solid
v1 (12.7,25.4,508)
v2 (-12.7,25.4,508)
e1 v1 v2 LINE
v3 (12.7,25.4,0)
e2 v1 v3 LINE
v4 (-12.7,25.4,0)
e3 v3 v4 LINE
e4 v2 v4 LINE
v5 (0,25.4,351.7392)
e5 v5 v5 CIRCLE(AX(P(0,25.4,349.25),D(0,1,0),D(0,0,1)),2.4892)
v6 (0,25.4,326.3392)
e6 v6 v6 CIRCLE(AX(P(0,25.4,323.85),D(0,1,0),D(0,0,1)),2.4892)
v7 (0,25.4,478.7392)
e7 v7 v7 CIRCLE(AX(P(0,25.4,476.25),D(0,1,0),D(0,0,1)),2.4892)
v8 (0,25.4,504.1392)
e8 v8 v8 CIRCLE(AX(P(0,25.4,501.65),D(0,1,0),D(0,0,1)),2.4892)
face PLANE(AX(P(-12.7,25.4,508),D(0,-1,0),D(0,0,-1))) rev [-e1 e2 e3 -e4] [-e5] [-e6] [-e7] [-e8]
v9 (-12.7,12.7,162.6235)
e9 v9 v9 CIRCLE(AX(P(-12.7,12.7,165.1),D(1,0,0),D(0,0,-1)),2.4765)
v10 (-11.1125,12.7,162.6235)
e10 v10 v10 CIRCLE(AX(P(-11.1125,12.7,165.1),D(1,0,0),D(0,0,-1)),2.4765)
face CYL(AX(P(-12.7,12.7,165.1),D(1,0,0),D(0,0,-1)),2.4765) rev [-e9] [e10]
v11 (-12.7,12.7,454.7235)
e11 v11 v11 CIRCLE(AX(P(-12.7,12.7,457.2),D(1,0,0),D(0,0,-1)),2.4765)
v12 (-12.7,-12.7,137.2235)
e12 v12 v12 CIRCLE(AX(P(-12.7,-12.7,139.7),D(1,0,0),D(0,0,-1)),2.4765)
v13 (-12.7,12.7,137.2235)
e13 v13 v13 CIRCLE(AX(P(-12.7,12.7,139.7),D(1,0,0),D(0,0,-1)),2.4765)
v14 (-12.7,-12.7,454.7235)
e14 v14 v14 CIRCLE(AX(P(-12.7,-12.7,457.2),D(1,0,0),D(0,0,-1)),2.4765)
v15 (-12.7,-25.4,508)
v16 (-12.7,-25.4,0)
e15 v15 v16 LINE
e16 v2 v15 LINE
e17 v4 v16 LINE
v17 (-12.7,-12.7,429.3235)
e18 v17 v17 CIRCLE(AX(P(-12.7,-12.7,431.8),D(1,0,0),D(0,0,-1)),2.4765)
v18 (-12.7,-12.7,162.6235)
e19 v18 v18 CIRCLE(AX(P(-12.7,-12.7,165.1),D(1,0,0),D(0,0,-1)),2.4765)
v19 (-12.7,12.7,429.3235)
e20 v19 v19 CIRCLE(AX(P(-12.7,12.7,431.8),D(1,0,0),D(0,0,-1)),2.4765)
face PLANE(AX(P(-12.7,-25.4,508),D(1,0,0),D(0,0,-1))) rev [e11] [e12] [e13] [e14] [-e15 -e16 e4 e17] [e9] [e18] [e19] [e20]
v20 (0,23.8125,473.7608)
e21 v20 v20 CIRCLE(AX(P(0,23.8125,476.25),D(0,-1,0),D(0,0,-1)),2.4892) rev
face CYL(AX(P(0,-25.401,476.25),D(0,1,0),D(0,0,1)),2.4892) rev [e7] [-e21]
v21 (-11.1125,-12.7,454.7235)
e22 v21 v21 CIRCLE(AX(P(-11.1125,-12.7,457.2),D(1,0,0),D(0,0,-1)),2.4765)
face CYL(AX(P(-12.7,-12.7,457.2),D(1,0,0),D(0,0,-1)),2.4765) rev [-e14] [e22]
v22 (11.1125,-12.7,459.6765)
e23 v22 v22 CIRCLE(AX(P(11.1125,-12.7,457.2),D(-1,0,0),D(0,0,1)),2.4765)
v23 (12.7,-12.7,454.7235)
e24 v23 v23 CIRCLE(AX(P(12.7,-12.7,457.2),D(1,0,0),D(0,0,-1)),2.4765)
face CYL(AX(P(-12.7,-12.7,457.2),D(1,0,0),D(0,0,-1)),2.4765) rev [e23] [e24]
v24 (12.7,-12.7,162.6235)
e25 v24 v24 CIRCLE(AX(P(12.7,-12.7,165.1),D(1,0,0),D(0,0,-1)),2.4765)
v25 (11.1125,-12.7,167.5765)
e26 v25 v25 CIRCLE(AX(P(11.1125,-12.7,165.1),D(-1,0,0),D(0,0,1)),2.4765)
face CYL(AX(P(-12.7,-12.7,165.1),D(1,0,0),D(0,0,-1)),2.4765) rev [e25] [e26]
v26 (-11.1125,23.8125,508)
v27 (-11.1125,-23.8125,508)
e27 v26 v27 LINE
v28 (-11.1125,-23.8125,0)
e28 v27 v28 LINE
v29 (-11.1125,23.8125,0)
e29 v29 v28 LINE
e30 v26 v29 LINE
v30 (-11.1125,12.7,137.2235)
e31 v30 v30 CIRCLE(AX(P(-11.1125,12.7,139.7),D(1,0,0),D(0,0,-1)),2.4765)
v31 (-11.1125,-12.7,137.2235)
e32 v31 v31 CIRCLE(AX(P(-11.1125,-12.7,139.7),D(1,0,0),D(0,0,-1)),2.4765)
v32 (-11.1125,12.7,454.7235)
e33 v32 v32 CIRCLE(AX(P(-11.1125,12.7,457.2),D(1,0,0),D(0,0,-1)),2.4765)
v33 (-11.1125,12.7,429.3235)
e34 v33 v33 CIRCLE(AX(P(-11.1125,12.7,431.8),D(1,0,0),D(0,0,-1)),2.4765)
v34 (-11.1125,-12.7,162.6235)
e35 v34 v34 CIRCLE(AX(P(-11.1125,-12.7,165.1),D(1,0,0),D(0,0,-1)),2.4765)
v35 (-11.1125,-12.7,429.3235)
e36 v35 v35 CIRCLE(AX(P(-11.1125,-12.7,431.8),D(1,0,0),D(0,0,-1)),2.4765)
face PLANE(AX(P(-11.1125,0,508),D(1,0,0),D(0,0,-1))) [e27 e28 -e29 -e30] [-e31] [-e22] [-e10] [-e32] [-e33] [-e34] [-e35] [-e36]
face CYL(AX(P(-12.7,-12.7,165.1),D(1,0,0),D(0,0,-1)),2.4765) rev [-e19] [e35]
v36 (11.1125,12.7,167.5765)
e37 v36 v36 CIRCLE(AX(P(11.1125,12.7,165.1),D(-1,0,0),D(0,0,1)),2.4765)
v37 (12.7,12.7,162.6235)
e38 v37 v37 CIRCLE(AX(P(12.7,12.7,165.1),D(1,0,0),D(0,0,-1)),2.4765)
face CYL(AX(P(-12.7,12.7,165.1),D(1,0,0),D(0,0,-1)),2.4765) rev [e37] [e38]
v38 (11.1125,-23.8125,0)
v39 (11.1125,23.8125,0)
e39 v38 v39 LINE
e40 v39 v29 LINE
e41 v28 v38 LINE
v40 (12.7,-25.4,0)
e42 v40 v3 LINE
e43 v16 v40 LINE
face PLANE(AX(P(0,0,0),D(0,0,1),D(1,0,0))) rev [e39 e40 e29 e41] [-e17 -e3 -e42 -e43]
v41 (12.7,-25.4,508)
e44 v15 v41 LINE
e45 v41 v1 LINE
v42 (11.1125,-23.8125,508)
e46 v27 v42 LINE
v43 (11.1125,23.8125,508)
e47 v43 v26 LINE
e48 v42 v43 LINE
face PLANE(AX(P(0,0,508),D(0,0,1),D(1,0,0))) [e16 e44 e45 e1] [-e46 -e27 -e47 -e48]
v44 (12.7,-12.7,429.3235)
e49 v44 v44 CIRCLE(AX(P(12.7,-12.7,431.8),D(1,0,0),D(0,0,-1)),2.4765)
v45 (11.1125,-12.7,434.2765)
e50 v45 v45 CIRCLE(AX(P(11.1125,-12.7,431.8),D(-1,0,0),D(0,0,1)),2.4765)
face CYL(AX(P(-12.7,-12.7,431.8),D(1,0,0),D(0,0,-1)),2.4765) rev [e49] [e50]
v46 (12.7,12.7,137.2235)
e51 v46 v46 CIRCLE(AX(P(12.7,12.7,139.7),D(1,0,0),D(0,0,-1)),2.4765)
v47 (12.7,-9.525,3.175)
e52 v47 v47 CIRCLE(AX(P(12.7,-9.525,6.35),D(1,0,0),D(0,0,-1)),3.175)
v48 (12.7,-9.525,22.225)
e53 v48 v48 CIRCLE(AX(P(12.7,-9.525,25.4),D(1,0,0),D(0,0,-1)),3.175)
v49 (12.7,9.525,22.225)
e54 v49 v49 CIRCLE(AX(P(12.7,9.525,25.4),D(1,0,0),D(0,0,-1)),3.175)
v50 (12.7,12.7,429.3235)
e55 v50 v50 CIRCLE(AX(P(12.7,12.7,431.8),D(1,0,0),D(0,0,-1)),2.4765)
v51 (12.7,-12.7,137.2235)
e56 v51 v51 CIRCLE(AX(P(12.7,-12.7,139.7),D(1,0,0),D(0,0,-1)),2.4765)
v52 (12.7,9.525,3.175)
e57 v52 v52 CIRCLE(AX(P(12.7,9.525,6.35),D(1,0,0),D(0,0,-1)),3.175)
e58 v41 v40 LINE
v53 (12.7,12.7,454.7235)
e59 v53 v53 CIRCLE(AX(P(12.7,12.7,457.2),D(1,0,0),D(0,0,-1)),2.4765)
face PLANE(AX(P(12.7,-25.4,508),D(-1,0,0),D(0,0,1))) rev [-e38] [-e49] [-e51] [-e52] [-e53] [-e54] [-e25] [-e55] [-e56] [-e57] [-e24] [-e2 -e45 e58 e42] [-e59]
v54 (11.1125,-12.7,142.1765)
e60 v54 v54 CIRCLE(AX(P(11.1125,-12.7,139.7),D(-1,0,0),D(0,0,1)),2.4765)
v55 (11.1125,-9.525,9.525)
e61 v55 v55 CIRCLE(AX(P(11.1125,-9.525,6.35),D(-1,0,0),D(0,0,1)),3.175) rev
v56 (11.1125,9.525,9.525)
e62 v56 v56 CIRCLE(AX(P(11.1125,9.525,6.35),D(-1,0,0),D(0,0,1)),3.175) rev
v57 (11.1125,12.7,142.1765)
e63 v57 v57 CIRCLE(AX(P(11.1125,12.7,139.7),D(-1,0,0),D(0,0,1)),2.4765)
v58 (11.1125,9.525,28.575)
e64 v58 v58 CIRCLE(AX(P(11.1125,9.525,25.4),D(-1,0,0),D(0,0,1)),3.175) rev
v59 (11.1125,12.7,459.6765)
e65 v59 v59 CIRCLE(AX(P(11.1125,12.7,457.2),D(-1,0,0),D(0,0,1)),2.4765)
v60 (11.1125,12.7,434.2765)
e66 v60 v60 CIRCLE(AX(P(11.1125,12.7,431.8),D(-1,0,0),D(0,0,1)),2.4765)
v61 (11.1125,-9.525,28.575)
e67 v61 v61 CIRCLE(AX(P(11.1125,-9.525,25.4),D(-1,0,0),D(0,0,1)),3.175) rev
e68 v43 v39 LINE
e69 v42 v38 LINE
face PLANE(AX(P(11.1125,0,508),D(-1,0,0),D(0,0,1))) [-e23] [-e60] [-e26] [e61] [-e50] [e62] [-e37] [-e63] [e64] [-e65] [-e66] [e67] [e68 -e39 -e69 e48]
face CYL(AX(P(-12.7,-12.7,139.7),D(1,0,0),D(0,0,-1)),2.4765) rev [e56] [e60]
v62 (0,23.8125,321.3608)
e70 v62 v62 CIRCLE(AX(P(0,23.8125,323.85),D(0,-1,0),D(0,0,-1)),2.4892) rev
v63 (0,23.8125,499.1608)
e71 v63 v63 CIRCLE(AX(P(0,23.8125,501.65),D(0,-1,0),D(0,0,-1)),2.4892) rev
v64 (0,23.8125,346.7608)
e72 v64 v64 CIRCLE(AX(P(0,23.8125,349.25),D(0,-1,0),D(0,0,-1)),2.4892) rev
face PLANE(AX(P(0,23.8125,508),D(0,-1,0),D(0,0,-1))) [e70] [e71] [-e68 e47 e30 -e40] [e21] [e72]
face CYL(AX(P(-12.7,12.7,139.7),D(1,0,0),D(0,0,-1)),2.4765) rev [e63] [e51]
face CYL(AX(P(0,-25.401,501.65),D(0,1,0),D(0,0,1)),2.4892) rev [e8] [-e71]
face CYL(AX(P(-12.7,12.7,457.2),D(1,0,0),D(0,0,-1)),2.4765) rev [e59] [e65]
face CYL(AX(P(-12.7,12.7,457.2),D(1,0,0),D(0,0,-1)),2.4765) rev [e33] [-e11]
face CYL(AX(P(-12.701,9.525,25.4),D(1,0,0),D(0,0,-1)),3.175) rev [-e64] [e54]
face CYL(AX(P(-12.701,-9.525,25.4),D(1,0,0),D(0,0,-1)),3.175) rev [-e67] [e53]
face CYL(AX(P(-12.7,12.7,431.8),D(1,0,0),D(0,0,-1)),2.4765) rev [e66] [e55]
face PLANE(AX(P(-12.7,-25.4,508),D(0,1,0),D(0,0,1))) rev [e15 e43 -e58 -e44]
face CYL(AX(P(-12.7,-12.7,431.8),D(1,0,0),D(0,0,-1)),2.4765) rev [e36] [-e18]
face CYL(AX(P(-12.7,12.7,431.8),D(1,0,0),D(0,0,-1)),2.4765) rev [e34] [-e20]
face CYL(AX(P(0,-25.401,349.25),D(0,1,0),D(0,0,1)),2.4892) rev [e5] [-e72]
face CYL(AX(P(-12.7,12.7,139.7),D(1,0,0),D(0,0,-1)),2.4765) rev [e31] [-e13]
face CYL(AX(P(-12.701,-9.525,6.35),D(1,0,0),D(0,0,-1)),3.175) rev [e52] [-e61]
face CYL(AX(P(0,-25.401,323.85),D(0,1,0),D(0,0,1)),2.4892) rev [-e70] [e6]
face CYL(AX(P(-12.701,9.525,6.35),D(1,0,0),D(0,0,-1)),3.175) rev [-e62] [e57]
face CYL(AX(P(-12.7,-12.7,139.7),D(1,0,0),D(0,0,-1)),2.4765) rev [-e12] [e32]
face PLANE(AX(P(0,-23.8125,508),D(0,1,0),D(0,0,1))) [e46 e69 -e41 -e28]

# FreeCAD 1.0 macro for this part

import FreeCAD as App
import Part
import Sketcher
Q = App.Units.Quantity

doc = App.newDocument("Part")
params = doc.addObject("Spreadsheet::Sheet", "Params")
for row, (alias, value) in enumerate([
    ("sketch1_width", "1 in"),
    ("sketch1_height", "2 in"),
    ("sketch1_width2", "0.875 in"),
    ("sketch1_height2", "1.875 in"),
    ("pad1_length", "20 in"),
    ("sketch2_diameter", "0.195 in"),
    ("sketch3_diameter", "0.196 in"),
    ("sketch4_diameter", "0.196 in"),
    ("sketch5_diameter", "0.196 in"),
    ("sketch6_diameter", "0.196 in"),
    ("sketch7_diameter", "0.25 in"),
    ("sketch8_diameter", "0.25 in"),
    ("sketch9_diameter", "0.25 in"),
    ("sketch10_diameter", "0.25 in"),
], start=1):
    params.set(f"A{row}", alias)
    params.set(f"B{row}", "=" + value)
    params.setAlias(f"B{row}", alias)

body = doc.addObject("PartDesign::Body", "Body")

sketch1 = body.newObject("Sketcher::SketchObject", "Sketch")
sketch1.AttachmentSupport = (doc.getObject("XY_Plane"), [""])
sketch1.MapMode = "FlatFace"
sketch1.addGeometry([
    Part.LineSegment(App.Vector(-12.7, 25.4, 0), App.Vector(-12.7, -25.4, 0)),
    Part.LineSegment(App.Vector(-12.7, -25.4, 0), App.Vector(12.7, -25.4, 0)),
    Part.LineSegment(App.Vector(12.7, -25.4, 0), App.Vector(12.7, 25.4, 0)),
    Part.LineSegment(App.Vector(12.7, 25.4, 0), App.Vector(-12.7, 25.4, 0)),
    Part.LineSegment(App.Vector(11.1125, -23.8125, 0), App.Vector(-11.1125, -23.8125, 0)),
    Part.LineSegment(App.Vector(-11.1125, -23.8125, 0), App.Vector(-11.1125, 23.8125, 0)),
    Part.LineSegment(App.Vector(-11.1125, 23.8125, 0), App.Vector(11.1125, 23.8125, 0)),
    Part.LineSegment(App.Vector(11.1125, 23.8125, 0), App.Vector(11.1125, -23.8125, 0)),
], False)
sketch1.addConstraint([
    Sketcher.Constraint("Coincident", 0, 2, 1, 1),
    Sketcher.Constraint("Coincident", 1, 2, 2, 1),
    Sketcher.Constraint("Coincident", 2, 2, 3, 1),
    Sketcher.Constraint("Coincident", 3, 2, 0, 1),
    Sketcher.Constraint("Coincident", 4, 2, 5, 1),
    Sketcher.Constraint("Coincident", 5, 2, 6, 1),
    Sketcher.Constraint("Coincident", 6, 2, 7, 1),
    Sketcher.Constraint("Coincident", 7, 2, 4, 1),
    Sketcher.Constraint("Vertical", 0),
    Sketcher.Constraint("Horizontal", 1),
    Sketcher.Constraint("Vertical", 2),
    Sketcher.Constraint("Horizontal", 3),
    Sketcher.Constraint("Horizontal", 4),
    Sketcher.Constraint("Vertical", 5),
    Sketcher.Constraint("Horizontal", 6),
    Sketcher.Constraint("Vertical", 7),
    Sketcher.Constraint("Symmetric", 0, 2, 2, 2, -1, 1),
    Sketcher.Constraint("Symmetric", 4, 2, 6, 2, -1, 1),
    Sketcher.Constraint("DistanceX", 1, 1, 1, 2, Q("1 in")),
    Sketcher.Constraint("DistanceY", 0, 2, 0, 1, Q("2 in")),
    Sketcher.Constraint("DistanceX", 4, 2, 4, 1, Q("0.875 in")),
    Sketcher.Constraint("DistanceY", 5, 1, 5, 2, Q("1.875 in")),
])
sketch1.setExpression("Constraints[18]", "Params.sketch1_width")
sketch1.setExpression("Constraints[19]", "Params.sketch1_height")
sketch1.setExpression("Constraints[20]", "Params.sketch1_width2")
sketch1.setExpression("Constraints[21]", "Params.sketch1_height2")
pad1 = body.newObject("PartDesign::Pad", "Pad")
pad1.Profile = sketch1
pad1.setExpression("Length", "Params.pad1_length")

sketch2 = body.newObject("Sketcher::SketchObject", "Sketch001")
sketch2.AttachmentSupport = (doc.getObject("YZ_Plane"), [""])
sketch2.MapMode = "FlatFace"
sketch2.AttachmentOffset = App.Placement(App.Vector(0, 0, 0.5 * 25.4), App.Rotation())
sketch2.addGeometry([
    Part.Circle(App.Vector(12.7, 457.2, 0), App.Vector(0, 0, 1), 2.4765),
    Part.Circle(App.Vector(12.7, 431.8, 0), App.Vector(0, 0, 1), 2.4765),
    Part.Circle(App.Vector(-12.7, 431.8, 0), App.Vector(0, 0, 1), 2.4765),
    Part.Circle(App.Vector(-12.7, 457.2, 0), App.Vector(0, 0, 1), 2.4765),
    Part.Circle(App.Vector(12.7, 165.1, 0), App.Vector(0, 0, 1), 2.4765),
    Part.Circle(App.Vector(12.7, 139.7, 0), App.Vector(0, 0, 1), 2.4765),
    Part.Circle(App.Vector(-12.7, 139.7, 0), App.Vector(0, 0, 1), 2.4765),
    Part.Circle(App.Vector(-12.7, 165.1, 0), App.Vector(0, 0, 1), 2.4765),
], False)
sketch2.addConstraint([
    Sketcher.Constraint("Equal", 0, 1),
    Sketcher.Constraint("Equal", 1, 2),
    Sketcher.Constraint("Equal", 2, 3),
    Sketcher.Constraint("Equal", 3, 4),
    Sketcher.Constraint("Equal", 4, 5),
    Sketcher.Constraint("Equal", 5, 6),
    Sketcher.Constraint("Equal", 6, 7),
    Sketcher.Constraint("Symmetric", 1, 3, 2, 3, -2),
    Sketcher.Constraint("Symmetric", 0, 3, 3, 3, -2),
    Sketcher.Constraint("Symmetric", 5, 3, 6, 3, -2),
    Sketcher.Constraint("Symmetric", 4, 3, 7, 3, -2),
    Sketcher.Constraint("Vertical", 0, 3, 1, 3),
    Sketcher.Constraint("Vertical", 1, 3, 4, 3),
    Sketcher.Constraint("Vertical", 4, 3, 5, 3),
    Sketcher.Constraint("Diameter", 0, Q("0.195 in")),
    Sketcher.Constraint("DistanceY", -1, 1, 0, 3, Q("18 in")),
    Sketcher.Constraint("DistanceY", -1, 1, 1, 3, Q("17 in")),
    Sketcher.Constraint("DistanceX", 2, 3, 1, 3, Q("1 in")),
    Sketcher.Constraint("DistanceY", 5, 3, 4, 3, Q("1 in")),
    Sketcher.Constraint("DistanceY", -1, 1, 4, 3, Q("6.5 in")),
])
sketch2.setExpression("Constraints[14]", "Params.sketch2_diameter")
pocket1 = body.newObject("PartDesign::Pocket", "Pocket")
pocket1.Profile = sketch2
pocket1.Type = "ThroughAll"

sketch3 = body.newObject("Sketcher::SketchObject", "Sketch002")
sketch3.AttachmentSupport = (doc.getObject("XZ_Plane"), [""])
sketch3.MapMode = "FlatFace"
sketch3.AttachmentOffset = App.Placement(App.Vector(0, 0, -1 * 25.4), App.Rotation())
sketch3.addGeometry(Part.Circle(App.Vector(0, 323.85, 0), App.Vector(0, 0, 1), 2.4892), False)
sketch3.addConstraint([
    Sketcher.Constraint("PointOnObject", 0, 3, -2),
    Sketcher.Constraint("Diameter", 0, Q("0.196 in")),
    Sketcher.Constraint("DistanceY", -1, 1, 0, 3, Q("12.75 in")),
])
sketch3.setExpression("Constraints[1]", "Params.sketch3_diameter")
pocket2 = body.newObject("PartDesign::Pocket", "Pocket001")
pocket2.Profile = sketch3
pocket2.Type = "UpToFirst"
pocket2.Reversed = True

sketch4 = body.newObject("Sketcher::SketchObject", "Sketch003")
sketch4.AttachmentSupport = (doc.getObject("XZ_Plane"), [""])
sketch4.MapMode = "FlatFace"
sketch4.AttachmentOffset = App.Placement(App.Vector(0, 0, -1 * 25.4), App.Rotation())
sketch4.addGeometry(Part.Circle(App.Vector(0, 349.25, 0), App.Vector(0, 0, 1), 2.4892), False)
sketch4.addConstraint([
    Sketcher.Constraint("PointOnObject", 0, 3, -2),
    Sketcher.Constraint("Diameter", 0, Q("0.196 in")),
    Sketcher.Constraint("DistanceY", -1, 1, 0, 3, Q("13.75 in")),
])
sketch4.setExpression("Constraints[1]", "Params.sketch4_diameter")
pocket3 = body.newObject("PartDesign::Pocket", "Pocket002")
pocket3.Profile = sketch4
pocket3.Type = "UpToFirst"
pocket3.Reversed = True

sketch5 = body.newObject("Sketcher::SketchObject", "Sketch004")
sketch5.AttachmentSupport = (doc.getObject("XZ_Plane"), [""])
sketch5.MapMode = "FlatFace"
sketch5.AttachmentOffset = App.Placement(App.Vector(0, 0, -1 * 25.4), App.Rotation())
sketch5.addGeometry(Part.Circle(App.Vector(0, 476.25, 0), App.Vector(0, 0, 1), 2.4892), False)
sketch5.addConstraint([
    Sketcher.Constraint("PointOnObject", 0, 3, -2),
    Sketcher.Constraint("Diameter", 0, Q("0.196 in")),
    Sketcher.Constraint("DistanceY", -1, 1, 0, 3, Q("18.75 in")),
])
sketch5.setExpression("Constraints[1]", "Params.sketch5_diameter")
pocket4 = body.newObject("PartDesign::Pocket", "Pocket003")
pocket4.Profile = sketch5
pocket4.Type = "UpToFirst"
pocket4.Reversed = True

sketch6 = body.newObject("Sketcher::SketchObject", "Sketch005")
sketch6.AttachmentSupport = (doc.getObject("XZ_Plane"), [""])
sketch6.MapMode = "FlatFace"
sketch6.AttachmentOffset = App.Placement(App.Vector(0, 0, -1 * 25.4), App.Rotation())
sketch6.addGeometry(Part.Circle(App.Vector(0, 501.65, 0), App.Vector(0, 0, 1), 2.4892), False)
sketch6.addConstraint([
    Sketcher.Constraint("PointOnObject", 0, 3, -2),
    Sketcher.Constraint("Diameter", 0, Q("0.196 in")),
    Sketcher.Constraint("DistanceY", -1, 1, 0, 3, Q("19.75 in")),
])
sketch6.setExpression("Constraints[1]", "Params.sketch6_diameter")
pocket5 = body.newObject("PartDesign::Pocket", "Pocket004")
pocket5.Profile = sketch6
pocket5.Type = "UpToFirst"
pocket5.Reversed = True

sketch7 = body.newObject("Sketcher::SketchObject", "Sketch006")
sketch7.AttachmentSupport = (doc.getObject("YZ_Plane"), [""])
sketch7.MapMode = "FlatFace"
sketch7.AttachmentOffset = App.Placement(App.Vector(0, 0, 0.5 * 25.4), App.Rotation())
sketch7.addGeometry(Part.Circle(App.Vector(9.525, 25.4, 0), App.Vector(0, 0, 1), 3.175), False)
sketch7.addConstraint([
    Sketcher.Constraint("Diameter", 0, Q("0.25 in")),
    Sketcher.Constraint("DistanceY", -1, 1, 0, 3, Q("1 in")),
    Sketcher.Constraint("DistanceX", -1, 1, 0, 3, Q("0.375 in")),
])
sketch7.setExpression("Constraints[0]", "Params.sketch7_diameter")
pocket6 = body.newObject("PartDesign::Pocket", "Pocket005")
pocket6.Profile = sketch7
pocket6.Type = "UpToFirst"

sketch8 = body.newObject("Sketcher::SketchObject", "Sketch007")
sketch8.AttachmentSupport = (doc.getObject("YZ_Plane"), [""])
sketch8.MapMode = "FlatFace"
sketch8.AttachmentOffset = App.Placement(App.Vector(0, 0, 0.5 * 25.4), App.Rotation())
sketch8.addGeometry(Part.Circle(App.Vector(9.525, 6.35, 0), App.Vector(0, 0, 1), 3.175), False)
sketch8.addConstraint([
    Sketcher.Constraint("Diameter", 0, Q("0.25 in")),
    Sketcher.Constraint("DistanceY", -1, 1, 0, 3, Q("0.25 in")),
    Sketcher.Constraint("DistanceX", -1, 1, 0, 3, Q("0.375 in")),
])
sketch8.setExpression("Constraints[0]", "Params.sketch8_diameter")
pocket7 = body.newObject("PartDesign::Pocket", "Pocket006")
pocket7.Profile = sketch8
pocket7.Type = "UpToFirst"

sketch9 = body.newObject("Sketcher::SketchObject", "Sketch008")
sketch9.AttachmentSupport = (doc.getObject("YZ_Plane"), [""])
sketch9.MapMode = "FlatFace"
sketch9.AttachmentOffset = App.Placement(App.Vector(0, 0, 0.5 * 25.4), App.Rotation())
sketch9.addGeometry(Part.Circle(App.Vector(-9.525, 6.35, 0), App.Vector(0, 0, 1), 3.175), False)
sketch9.addConstraint([
    Sketcher.Constraint("Diameter", 0, Q("0.25 in")),
    Sketcher.Constraint("DistanceY", -1, 1, 0, 3, Q("0.25 in")),
    Sketcher.Constraint("DistanceX", 0, 3, -1, 1, Q("0.375 in")),
])
sketch9.setExpression("Constraints[0]", "Params.sketch9_diameter")
pocket8 = body.newObject("PartDesign::Pocket", "Pocket007")
pocket8.Profile = sketch9
pocket8.Type = "UpToFirst"

sketch10 = body.newObject("Sketcher::SketchObject", "Sketch009")
sketch10.AttachmentSupport = (doc.getObject("YZ_Plane"), [""])
sketch10.MapMode = "FlatFace"
sketch10.AttachmentOffset = App.Placement(App.Vector(0, 0, 0.5 * 25.4), App.Rotation())
sketch10.addGeometry(Part.Circle(App.Vector(-9.525, 25.4, 0), App.Vector(0, 0, 1), 3.175), False)
sketch10.addConstraint([
    Sketcher.Constraint("Diameter", 0, Q("0.25 in")),
    Sketcher.Constraint("DistanceY", -1, 1, 0, 3, Q("1 in")),
    Sketcher.Constraint("DistanceX", 0, 3, -1, 1, Q("0.375 in")),
])
sketch10.setExpression("Constraints[0]", "Params.sketch10_diameter")
pocket9 = body.newObject("PartDesign::Pocket", "Pocket008")
pocket9.Profile = sketch10
pocket9.Type = "UpToFirst"

doc.recompute()
